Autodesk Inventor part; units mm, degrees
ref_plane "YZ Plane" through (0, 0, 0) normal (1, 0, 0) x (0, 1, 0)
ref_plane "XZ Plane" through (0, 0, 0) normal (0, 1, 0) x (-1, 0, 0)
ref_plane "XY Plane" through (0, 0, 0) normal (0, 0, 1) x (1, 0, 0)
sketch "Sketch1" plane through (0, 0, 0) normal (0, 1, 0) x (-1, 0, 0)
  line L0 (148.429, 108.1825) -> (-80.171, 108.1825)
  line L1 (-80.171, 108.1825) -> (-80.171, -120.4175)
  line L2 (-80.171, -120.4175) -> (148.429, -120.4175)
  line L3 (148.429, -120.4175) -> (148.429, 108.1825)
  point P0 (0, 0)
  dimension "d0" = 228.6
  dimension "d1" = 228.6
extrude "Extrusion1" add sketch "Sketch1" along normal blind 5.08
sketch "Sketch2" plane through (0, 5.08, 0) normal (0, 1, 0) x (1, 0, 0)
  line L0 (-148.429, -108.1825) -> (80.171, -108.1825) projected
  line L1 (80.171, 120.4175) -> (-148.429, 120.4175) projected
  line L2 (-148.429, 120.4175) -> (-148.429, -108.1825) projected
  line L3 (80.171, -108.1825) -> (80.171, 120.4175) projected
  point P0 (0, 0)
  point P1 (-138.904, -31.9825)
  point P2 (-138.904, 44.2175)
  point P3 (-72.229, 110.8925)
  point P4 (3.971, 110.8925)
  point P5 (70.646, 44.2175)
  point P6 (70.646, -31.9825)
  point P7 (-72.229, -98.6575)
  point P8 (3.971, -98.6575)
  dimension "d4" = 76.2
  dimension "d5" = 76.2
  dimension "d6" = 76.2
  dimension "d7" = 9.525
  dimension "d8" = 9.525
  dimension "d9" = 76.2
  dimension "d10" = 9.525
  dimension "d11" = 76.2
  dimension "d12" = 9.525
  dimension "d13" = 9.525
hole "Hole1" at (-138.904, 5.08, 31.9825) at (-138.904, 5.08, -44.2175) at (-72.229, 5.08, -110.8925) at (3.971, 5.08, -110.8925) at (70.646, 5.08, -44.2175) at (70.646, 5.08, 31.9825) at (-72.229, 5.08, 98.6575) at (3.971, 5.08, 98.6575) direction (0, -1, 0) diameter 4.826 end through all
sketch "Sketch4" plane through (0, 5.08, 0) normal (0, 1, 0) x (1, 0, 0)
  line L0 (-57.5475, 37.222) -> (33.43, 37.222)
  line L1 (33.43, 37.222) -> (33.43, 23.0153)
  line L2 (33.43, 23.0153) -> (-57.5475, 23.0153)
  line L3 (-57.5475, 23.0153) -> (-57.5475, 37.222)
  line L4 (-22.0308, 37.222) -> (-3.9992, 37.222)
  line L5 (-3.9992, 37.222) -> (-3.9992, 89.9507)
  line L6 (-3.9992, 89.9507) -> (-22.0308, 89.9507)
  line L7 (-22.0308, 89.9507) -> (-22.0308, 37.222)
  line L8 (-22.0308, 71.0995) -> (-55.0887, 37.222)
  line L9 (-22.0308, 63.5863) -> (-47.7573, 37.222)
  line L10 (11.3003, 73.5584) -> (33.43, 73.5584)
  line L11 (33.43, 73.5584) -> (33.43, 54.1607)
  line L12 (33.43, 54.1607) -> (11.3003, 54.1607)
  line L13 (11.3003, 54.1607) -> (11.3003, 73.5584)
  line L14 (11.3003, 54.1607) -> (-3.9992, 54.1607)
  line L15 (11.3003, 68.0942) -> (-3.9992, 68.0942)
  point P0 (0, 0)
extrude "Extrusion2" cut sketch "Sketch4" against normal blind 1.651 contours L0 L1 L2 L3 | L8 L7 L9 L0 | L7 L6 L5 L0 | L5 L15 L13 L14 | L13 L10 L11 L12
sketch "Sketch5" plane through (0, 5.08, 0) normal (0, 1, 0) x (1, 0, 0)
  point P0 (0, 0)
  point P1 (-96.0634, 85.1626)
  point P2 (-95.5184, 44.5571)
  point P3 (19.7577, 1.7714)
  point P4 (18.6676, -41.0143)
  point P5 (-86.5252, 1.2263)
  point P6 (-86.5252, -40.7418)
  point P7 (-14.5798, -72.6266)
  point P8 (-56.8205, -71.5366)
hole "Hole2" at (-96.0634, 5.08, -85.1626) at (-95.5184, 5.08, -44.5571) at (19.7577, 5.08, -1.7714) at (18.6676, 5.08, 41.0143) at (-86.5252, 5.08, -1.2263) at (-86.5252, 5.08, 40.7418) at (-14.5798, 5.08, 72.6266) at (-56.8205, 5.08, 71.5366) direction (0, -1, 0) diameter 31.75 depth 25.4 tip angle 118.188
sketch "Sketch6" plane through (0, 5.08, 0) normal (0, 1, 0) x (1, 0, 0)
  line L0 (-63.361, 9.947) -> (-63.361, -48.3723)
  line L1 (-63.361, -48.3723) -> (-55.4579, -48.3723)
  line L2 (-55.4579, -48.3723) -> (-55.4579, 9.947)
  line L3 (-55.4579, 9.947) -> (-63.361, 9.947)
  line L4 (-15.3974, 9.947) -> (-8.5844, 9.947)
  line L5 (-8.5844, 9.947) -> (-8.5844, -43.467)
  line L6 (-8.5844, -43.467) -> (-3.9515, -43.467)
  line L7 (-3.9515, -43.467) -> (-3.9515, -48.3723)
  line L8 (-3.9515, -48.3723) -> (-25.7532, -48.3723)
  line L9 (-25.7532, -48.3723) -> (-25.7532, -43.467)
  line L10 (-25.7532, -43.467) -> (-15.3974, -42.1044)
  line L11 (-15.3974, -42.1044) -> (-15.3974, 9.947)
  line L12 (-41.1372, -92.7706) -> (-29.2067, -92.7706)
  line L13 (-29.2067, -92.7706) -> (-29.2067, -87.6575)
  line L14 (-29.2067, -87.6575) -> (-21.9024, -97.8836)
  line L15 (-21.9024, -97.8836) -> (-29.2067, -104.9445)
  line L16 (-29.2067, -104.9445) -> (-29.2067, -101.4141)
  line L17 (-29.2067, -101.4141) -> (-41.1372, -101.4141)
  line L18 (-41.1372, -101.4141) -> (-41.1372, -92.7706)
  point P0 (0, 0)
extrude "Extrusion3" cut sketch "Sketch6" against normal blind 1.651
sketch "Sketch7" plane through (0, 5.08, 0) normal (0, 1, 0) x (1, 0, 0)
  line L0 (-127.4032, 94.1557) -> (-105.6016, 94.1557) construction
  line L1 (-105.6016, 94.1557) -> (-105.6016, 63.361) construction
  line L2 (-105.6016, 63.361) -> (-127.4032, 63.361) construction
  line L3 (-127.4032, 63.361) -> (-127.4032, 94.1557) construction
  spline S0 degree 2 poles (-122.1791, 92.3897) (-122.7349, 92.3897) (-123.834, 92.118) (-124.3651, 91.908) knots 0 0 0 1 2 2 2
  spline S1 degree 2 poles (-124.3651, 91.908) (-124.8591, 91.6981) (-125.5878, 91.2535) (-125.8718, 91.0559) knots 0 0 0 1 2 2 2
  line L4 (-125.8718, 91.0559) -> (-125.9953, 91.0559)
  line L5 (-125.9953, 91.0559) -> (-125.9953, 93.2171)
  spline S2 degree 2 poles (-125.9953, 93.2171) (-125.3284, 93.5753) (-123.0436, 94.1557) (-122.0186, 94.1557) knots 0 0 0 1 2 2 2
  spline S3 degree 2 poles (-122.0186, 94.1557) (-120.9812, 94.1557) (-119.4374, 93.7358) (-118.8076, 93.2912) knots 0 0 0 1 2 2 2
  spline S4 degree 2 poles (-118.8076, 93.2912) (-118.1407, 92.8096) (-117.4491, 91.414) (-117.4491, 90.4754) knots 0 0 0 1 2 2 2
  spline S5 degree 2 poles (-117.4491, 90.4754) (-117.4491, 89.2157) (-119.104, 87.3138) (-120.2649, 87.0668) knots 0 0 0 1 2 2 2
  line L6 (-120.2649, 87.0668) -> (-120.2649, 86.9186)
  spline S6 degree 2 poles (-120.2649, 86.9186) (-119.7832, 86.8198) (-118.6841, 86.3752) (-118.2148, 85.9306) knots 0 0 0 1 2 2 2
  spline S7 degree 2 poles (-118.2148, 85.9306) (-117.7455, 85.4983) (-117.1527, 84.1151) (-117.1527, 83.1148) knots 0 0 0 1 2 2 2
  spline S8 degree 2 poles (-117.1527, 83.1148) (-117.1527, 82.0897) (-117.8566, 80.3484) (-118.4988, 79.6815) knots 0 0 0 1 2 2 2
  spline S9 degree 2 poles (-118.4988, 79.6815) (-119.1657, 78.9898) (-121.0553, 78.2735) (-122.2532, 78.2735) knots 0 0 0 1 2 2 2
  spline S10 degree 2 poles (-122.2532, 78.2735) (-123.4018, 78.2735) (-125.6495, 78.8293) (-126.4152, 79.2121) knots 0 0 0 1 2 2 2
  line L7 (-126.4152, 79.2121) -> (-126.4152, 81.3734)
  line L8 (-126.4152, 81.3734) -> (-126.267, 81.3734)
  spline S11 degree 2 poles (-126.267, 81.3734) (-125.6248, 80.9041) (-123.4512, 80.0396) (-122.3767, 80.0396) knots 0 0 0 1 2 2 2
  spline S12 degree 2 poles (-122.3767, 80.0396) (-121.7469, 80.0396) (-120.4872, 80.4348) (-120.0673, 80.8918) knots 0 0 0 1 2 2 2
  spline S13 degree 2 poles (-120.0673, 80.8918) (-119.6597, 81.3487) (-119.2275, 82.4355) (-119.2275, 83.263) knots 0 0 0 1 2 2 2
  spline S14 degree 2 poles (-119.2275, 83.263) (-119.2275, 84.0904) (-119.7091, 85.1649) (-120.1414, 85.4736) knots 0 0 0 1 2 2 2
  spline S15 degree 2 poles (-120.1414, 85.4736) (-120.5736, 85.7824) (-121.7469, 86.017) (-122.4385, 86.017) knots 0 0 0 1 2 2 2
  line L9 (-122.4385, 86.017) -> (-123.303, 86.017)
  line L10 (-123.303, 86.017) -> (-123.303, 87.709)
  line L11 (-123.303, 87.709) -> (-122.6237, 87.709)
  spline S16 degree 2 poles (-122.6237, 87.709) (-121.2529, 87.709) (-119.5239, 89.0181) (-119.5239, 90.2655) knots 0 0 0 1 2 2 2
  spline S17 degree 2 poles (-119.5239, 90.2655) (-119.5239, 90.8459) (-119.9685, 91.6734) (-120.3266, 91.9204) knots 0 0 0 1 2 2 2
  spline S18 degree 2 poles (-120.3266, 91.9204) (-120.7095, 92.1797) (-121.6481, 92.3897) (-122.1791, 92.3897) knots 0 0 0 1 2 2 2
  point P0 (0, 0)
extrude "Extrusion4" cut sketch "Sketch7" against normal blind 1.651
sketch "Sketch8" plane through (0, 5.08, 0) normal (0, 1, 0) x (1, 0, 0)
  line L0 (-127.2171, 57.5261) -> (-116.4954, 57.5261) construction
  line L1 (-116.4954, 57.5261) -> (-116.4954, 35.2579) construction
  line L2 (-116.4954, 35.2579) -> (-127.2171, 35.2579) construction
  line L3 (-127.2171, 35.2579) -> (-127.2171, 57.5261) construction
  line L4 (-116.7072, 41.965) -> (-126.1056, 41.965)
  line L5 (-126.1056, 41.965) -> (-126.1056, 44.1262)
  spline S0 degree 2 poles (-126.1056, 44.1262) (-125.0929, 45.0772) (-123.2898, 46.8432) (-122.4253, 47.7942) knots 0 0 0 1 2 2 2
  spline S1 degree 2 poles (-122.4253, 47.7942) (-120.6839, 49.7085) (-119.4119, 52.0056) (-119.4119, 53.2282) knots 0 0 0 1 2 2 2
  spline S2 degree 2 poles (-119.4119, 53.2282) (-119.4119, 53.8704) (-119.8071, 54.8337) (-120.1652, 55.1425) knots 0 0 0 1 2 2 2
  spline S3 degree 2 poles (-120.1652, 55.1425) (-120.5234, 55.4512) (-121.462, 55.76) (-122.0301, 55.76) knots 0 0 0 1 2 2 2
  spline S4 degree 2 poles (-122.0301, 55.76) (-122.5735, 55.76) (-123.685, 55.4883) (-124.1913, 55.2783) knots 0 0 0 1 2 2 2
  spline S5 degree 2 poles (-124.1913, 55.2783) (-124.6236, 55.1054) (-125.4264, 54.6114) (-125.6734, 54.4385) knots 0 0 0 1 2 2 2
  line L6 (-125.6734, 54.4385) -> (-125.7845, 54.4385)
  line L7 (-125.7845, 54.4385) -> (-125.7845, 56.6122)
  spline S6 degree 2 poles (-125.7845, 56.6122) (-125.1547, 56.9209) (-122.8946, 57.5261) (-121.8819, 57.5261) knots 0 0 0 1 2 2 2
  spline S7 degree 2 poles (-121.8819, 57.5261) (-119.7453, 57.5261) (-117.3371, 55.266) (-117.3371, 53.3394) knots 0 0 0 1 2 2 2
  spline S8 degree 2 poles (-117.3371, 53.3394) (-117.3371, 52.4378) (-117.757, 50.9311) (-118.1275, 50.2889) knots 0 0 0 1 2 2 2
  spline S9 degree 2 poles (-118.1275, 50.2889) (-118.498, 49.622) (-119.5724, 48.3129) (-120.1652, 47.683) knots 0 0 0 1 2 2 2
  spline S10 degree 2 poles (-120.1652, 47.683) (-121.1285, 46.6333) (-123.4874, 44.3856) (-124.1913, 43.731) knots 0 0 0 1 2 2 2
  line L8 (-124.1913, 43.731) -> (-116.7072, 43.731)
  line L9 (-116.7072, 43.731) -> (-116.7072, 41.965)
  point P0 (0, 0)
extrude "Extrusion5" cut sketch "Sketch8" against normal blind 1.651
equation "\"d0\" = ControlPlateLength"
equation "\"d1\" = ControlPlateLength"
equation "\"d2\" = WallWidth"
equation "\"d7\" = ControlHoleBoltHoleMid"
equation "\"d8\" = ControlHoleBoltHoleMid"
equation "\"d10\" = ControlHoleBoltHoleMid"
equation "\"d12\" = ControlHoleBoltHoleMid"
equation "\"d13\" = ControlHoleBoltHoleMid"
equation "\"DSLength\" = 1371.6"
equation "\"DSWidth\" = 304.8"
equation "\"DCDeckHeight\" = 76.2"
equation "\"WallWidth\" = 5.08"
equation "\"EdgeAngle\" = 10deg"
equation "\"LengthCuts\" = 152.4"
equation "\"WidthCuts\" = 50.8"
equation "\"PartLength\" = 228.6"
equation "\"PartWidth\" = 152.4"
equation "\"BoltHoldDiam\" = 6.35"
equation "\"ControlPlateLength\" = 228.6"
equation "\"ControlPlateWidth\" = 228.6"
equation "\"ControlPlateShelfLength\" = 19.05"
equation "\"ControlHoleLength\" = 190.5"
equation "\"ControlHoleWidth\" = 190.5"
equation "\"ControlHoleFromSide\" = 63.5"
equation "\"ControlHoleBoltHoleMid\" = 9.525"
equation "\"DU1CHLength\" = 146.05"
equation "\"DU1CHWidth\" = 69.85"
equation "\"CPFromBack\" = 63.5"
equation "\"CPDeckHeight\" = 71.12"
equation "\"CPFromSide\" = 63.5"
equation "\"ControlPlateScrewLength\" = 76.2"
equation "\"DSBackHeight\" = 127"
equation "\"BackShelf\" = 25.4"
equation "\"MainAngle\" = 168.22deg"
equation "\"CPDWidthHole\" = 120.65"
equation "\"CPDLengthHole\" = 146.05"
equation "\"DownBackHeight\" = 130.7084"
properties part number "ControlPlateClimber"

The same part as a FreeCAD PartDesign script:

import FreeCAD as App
import Part
import Sketcher
from FreeCAD import Vector
Q = App.Units.Quantity

doc = App.newDocument("Part")
body = doc.addObject("PartDesign::Body", "Body")

sketch1 = body.newObject("Sketcher::SketchObject", "Sketch")
sketch1.AttachmentSupport = (doc.getObject("XZ_Plane"), [""])
sketch1.MapMode = "FlatFace"
sketch1.addGeometry([
    Part.LineSegment(Vector(-148, -120, 0), Vector(-148, 108, 0)),
    Part.LineSegment(Vector(-148, 108, 0), Vector(80, 108, 0)),
    Part.LineSegment(Vector(80, 108, 0), Vector(80, -120, 0)),
    Part.LineSegment(Vector(80, -120, 0), Vector(-148, -120, 0)),
], False)
sketch1.addConstraint([
    Sketcher.Constraint("Coincident", 0, 2, 1, 1),
    Sketcher.Constraint("Coincident", 1, 2, 2, 1),
    Sketcher.Constraint("Coincident", 2, 2, 3, 1),
    Sketcher.Constraint("Coincident", 3, 2, 0, 1),
    Sketcher.Constraint("Vertical", 0),
    Sketcher.Constraint("Horizontal", 1),
    Sketcher.Constraint("Vertical", 2),
    Sketcher.Constraint("Horizontal", 3),
    Sketcher.Constraint("Equal", 3, 0),
    Sketcher.Constraint("DistanceX", 1, 1, 1, 2, Q("9 in")),
    Sketcher.Constraint("DistanceX", 0, 2, -1, 1, 148.429),
    Sketcher.Constraint("DistanceY", -1, 1, 0, 2, 108.1825),
])
pad1 = body.newObject("PartDesign::Pad", "Pad")
pad1.Profile = sketch1
pad1.Length = Q("0.2 in")
pad1.Reversed = True

sketch2 = body.newObject("Sketcher::SketchObject", "Sketch001")
sketch2.AttachmentSupport = (doc.getObject("XZ_Plane"), [""])
sketch2.MapMode = "FlatFace"
sketch2.AttachmentOffset = App.Placement(Vector(0, 0, -0.2 * 25.4), App.Rotation())
sketch2.addGeometry([
    Part.Circle(Vector(-138.9, 32, 0), Vector(0, 0, 1), 2.4),
    Part.Circle(Vector(-138.9, -44.2, 0), Vector(0, 0, 1), 2.4),
    Part.Circle(Vector(-72.2, -110.9, 0), Vector(0, 0, 1), 2.4),
    Part.Circle(Vector(4, -110.9, 0), Vector(0, 0, 1), 2.4),
    Part.Circle(Vector(70.6, -44.2, 0), Vector(0, 0, 1), 2.4),
    Part.Circle(Vector(70.6, 32, 0), Vector(0, 0, 1), 2.4),
    Part.Circle(Vector(-72.2, 98.7, 0), Vector(0, 0, 1), 2.4),
    Part.Circle(Vector(4, 98.7, 0), Vector(0, 0, 1), 2.4),
], False)
sketch2.addConstraint([
    Sketcher.Constraint("Equal", 0, 1),
    Sketcher.Constraint("Equal", 1, 2),
    Sketcher.Constraint("Equal", 2, 3),
    Sketcher.Constraint("Equal", 3, 4),
    Sketcher.Constraint("Equal", 4, 5),
    Sketcher.Constraint("Equal", 5, 6),
    Sketcher.Constraint("Equal", 6, 7),
    Sketcher.Constraint("Horizontal", 2, 3, 3, 3),
    Sketcher.Constraint("Horizontal", 1, 3, 4, 3),
    Sketcher.Constraint("Horizontal", 0, 3, 5, 3),
    Sketcher.Constraint("Horizontal", 6, 3, 7, 3),
    Sketcher.Constraint("Vertical", 0, 3, 1, 3),
    Sketcher.Constraint("Vertical", 4, 3, 5, 3),
    Sketcher.Constraint("Vertical", 2, 3, 6, 3),
    Sketcher.Constraint("Vertical", 3, 3, 7, 3),
    Sketcher.Constraint("Diameter", 0, Q("0.19 in")),
    Sketcher.Constraint("DistanceY", 1, 3, 0, 3, Q("3 in")),
    Sketcher.Constraint("DistanceX", 2, 3, 3, 3, Q("3 in")),
    Sketcher.Constraint("DistanceX", 1, 3, 4, 3, Q("8.25 in")),
    Sketcher.Constraint("DistanceY", 2, 3, 6, 3, Q("8.25 in")),
    Sketcher.Constraint("DistanceX", 1, 3, 2, 3, Q("2.625 in")),
    Sketcher.Constraint("DistanceY", 2, 3, 1, 3, Q("2.625 in")),
    Sketcher.Constraint("DistanceX", 0, 3, -1, 1, 138.904),
    Sketcher.Constraint("DistanceY", -1, 1, 0, 3, 31.9825),
])
doc.recompute()
hole = body.newObject("PartDesign::Hole", "Hole")
hole.Profile = sketch2
hole.ThreadType = "None"
hole.Diameter = Q("0.19 in")
hole.DepthType = "ThroughAll"
hole.Reversed = True

sketch3 = body.newObject("Sketcher::SketchObject", "Sketch002")
sketch3.AttachmentSupport = (doc.getObject("XZ_Plane"), [""])
sketch3.MapMode = "FlatFace"
sketch3.AttachmentOffset = App.Placement(Vector(0, 0, -0.2 * 25.4), App.Rotation())
sketch3.addGeometry([
    Part.LineSegment(Vector(-55.1, -37.2, 0), Vector(-57.5, -37.2, 0)),
    Part.LineSegment(Vector(-57.5, -37.2, 0), Vector(-57.5, -23, 0)),
    Part.LineSegment(Vector(-57.5, -23, 0), Vector(33.4, -23, 0)),
    Part.LineSegment(Vector(33.4, -23, 0), Vector(33.4, -37.2, 0)),
    Part.LineSegment(Vector(33.4, -37.2, 0), Vector(-4, -37.2, 0)),
    Part.LineSegment(Vector(-4, -37.2, 0), Vector(-4, -54.2, 0)),
    Part.LineSegment(Vector(-4, -54.2, 0), Vector(33.4, -54.2, 0)),
    Part.LineSegment(Vector(33.4, -54.2, 0), Vector(33.4, -73.6, 0)),
    Part.LineSegment(Vector(33.4, -73.6, 0), Vector(11.3, -73.6, 0)),
    Part.LineSegment(Vector(11.3, -73.6, 0), Vector(11.3, -68.1, 0)),
    Part.LineSegment(Vector(11.3, -68.1, 0), Vector(-4, -68.1, 0)),
    Part.LineSegment(Vector(-4, -68.1, 0), Vector(-4, -90, 0)),
    Part.LineSegment(Vector(-4, -90, 0), Vector(-22, -90, 0)),
    Part.LineSegment(Vector(-22, -90, 0), Vector(-22, -71.1, 0)),
    Part.LineSegment(Vector(-22, -71.1, 0), Vector(-55.1, -37.2, 0)),
    Part.LineSegment(Vector(-22, -37.2, 0), Vector(-47.8, -37.2, 0)),
    Part.LineSegment(Vector(-47.8, -37.2, 0), Vector(-22, -63.6, 0)),
    Part.LineSegment(Vector(-22, -63.6, 0), Vector(-22, -37.2, 0)),
], False)
sketch3.addConstraint([
    Sketcher.Constraint("Coincident", 0, 2, 1, 1),
    Sketcher.Constraint("Coincident", 1, 2, 2, 1),
    Sketcher.Constraint("Coincident", 2, 2, 3, 1),
    Sketcher.Constraint("Coincident", 3, 2, 4, 1),
    Sketcher.Constraint("Coincident", 4, 2, 5, 1),
    Sketcher.Constraint("Coincident", 5, 2, 6, 1),
    Sketcher.Constraint("Coincident", 6, 2, 7, 1),
    Sketcher.Constraint("Coincident", 7, 2, 8, 1),
    Sketcher.Constraint("Coincident", 8, 2, 9, 1),
    Sketcher.Constraint("Coincident", 9, 2, 10, 1),
    Sketcher.Constraint("Coincident", 10, 2, 11, 1),
    Sketcher.Constraint("Coincident", 11, 2, 12, 1),
    Sketcher.Constraint("Coincident", 12, 2, 13, 1),
    Sketcher.Constraint("Coincident", 13, 2, 14, 1),
    Sketcher.Constraint("Coincident", 14, 2, 0, 1),
    Sketcher.Constraint("Coincident", 15, 2, 16, 1),
    Sketcher.Constraint("Coincident", 16, 2, 17, 1),
    Sketcher.Constraint("Coincident", 17, 2, 15, 1),
    Sketcher.Constraint("Horizontal", 0),
    Sketcher.Constraint("Vertical", 1),
    Sketcher.Constraint("Horizontal", 2),
    Sketcher.Constraint("Vertical", 3),
    Sketcher.Constraint("Horizontal", 4),
    Sketcher.Constraint("Vertical", 5),
    Sketcher.Constraint("Horizontal", 6),
    Sketcher.Constraint("Vertical", 7),
    Sketcher.Constraint("Horizontal", 8),
    Sketcher.Constraint("Vertical", 9),
    Sketcher.Constraint("Horizontal", 10),
    Sketcher.Constraint("Vertical", 11),
    Sketcher.Constraint("Horizontal", 12),
    Sketcher.Constraint("Vertical", 13),
    Sketcher.Constraint("Horizontal", 15),
    Sketcher.Constraint("Vertical", 17),
    Sketcher.Constraint("Parallel", 14, 16),
    Sketcher.Constraint("Horizontal", 0, 2, 3, 2),
    Sketcher.Constraint("Horizontal", 14, 2, 15, 2),
    Sketcher.Constraint("Vertical", 3, 2, 6, 2),
    Sketcher.Constraint("Vertical", 5, 2, 10, 2),
    Sketcher.Constraint("Vertical", 13, 2, 16, 2),
    Sketcher.Constraint("DistanceX", 0, 2, 0, 1, Q("0.0968 in")),
    Sketcher.Constraint("DistanceX", 2, 1, 2, 2, Q("3.5818 in")),
    Sketcher.Constraint("DistanceX", 4, 2, 4, 1, Q("1.4736 in")),
    Sketcher.Constraint("DistanceX", 12, 2, 12, 1, Q("0.7099 in")),
    Sketcher.Constraint("DistanceY", 7, 2, 7, 1, Q("0.7637 in")),
    Sketcher.Constraint("DistanceY", 11, 2, 11, 1, Q("0.8605 in")),
    Sketcher.Constraint("DistanceY", 7, 2, -1, 1, Q("2.896 in")),
    Sketcher.Constraint("DistanceX", 8, 2, 8, 1, 22.1297),
    Sketcher.Constraint("DistanceX", 15, 2, 15, 1, 25.7265),
    Sketcher.Constraint("DistanceY", 1, 1, 1, 2, 14.2067),
    Sketcher.Constraint("DistanceY", 5, 2, 5, 1, 16.9387),
    Sketcher.Constraint("DistanceY", 9, 1, 9, 2, 5.4642),
    Sketcher.Constraint("DistanceY", 13, 1, 13, 2, 18.8512),
    Sketcher.Constraint("DistanceX", -1, 1, 8, 2, Q("0.4449 in")),
])
pocket1 = body.newObject("PartDesign::Pocket", "Pocket")
pocket1.Profile = sketch3
pocket1.Length = Q("0.065 in")
pocket1.Reversed = True

sketch4 = body.newObject("Sketcher::SketchObject", "Sketch003")
sketch4.AttachmentSupport = (doc.getObject("XZ_Plane"), [""])
sketch4.MapMode = "FlatFace"
sketch4.AttachmentOffset = App.Placement(Vector(0, 0, -0.2 * 25.4), App.Rotation())
sketch4.addGeometry([
    Part.Circle(Vector(-96, -85, 0), Vector(0, 0, 1), 16),
    Part.Circle(Vector(-96, -45, 0), Vector(0, 0, 1), 16),
    Part.Circle(Vector(20, -2, 0), Vector(0, 0, 1), 16),
    Part.Circle(Vector(19, 41, 0), Vector(0, 0, 1), 16),
    Part.Circle(Vector(-87, -1, 0), Vector(0, 0, 1), 16),
    Part.Circle(Vector(-87, 41, 0), Vector(0, 0, 1), 16),
    Part.Circle(Vector(-15, 73, 0), Vector(0, 0, 1), 16),
    Part.Circle(Vector(-57, 72, 0), Vector(0, 0, 1), 16),
], False)
sketch4.addConstraint([
    Sketcher.Constraint("Equal", 0, 1),
    Sketcher.Constraint("Equal", 1, 2),
    Sketcher.Constraint("Equal", 2, 3),
    Sketcher.Constraint("Equal", 3, 4),
    Sketcher.Constraint("Equal", 4, 5),
    Sketcher.Constraint("Equal", 5, 6),
    Sketcher.Constraint("Equal", 6, 7),
    Sketcher.Constraint("Vertical", 4, 3, 5, 3),
    Sketcher.Constraint("Diameter", 0, Q("1.25 in")),
    Sketcher.Constraint("DistanceY", -1, 1, 5, 3, Q("1.604 in")),
    Sketcher.Constraint("DistanceX", 6, 3, -1, 1, Q("0.574 in")),
    Sketcher.Constraint("DistanceX", 4, 3, -1, 1, Q("3.4065 in")),
    Sketcher.Constraint("DistanceY", -1, 1, 7, 3, Q("2.8164 in")),
    Sketcher.Constraint("DistanceX", 1, 3, 3, 3, Q("4.4955 in")),
    Sketcher.Constraint("DistanceY", 0, 3, 3, 3, Q("4.9676 in")),
    Sketcher.Constraint("DistanceY", 5, 3, 6, 3, Q("1.2553 in")),
    Sketcher.Constraint("DistanceY", 4, 3, 6, 3, Q("2.9076 in")),
    Sketcher.Constraint("DistanceX", 7, 3, 2, 3, Q("3.0149 in")),
    Sketcher.Constraint("DistanceX", 0, 3, -1, 1, 96.0634),
    Sketcher.Constraint("DistanceY", 0, 3, -1, 1, 85.1626),
    Sketcher.Constraint("DistanceX", 1, 3, -1, 1, 95.5184),
    Sketcher.Constraint("DistanceY", 1, 3, -1, 1, 44.557),
    Sketcher.Constraint("DistanceX", -1, 1, 2, 3, 19.7577),
    Sketcher.Constraint("DistanceY", 2, 3, -1, 1, 1.7714),
])
doc.recompute()
hole2 = body.newObject("PartDesign::Hole", "Hole001")
hole2.Profile = sketch4
hole2.ThreadType = "None"
hole2.Diameter = Q("1.25 in")
hole2.DepthType = "Dimension"
hole2.Depth = Q("1 in")
hole2.DrillPoint = "Angled"
hole2.DrillPointAngle = 118.188
hole2.Reversed = True

sketch5 = body.newObject("Sketcher::SketchObject", "Sketch004")
sketch5.AttachmentSupport = (doc.getObject("XZ_Plane"), [""])
sketch5.MapMode = "FlatFace"
sketch5.AttachmentOffset = App.Placement(Vector(0, 0, -0.2 * 25.4), App.Rotation())
sketch5.addGeometry([
    Part.LineSegment(Vector(-55.5, -9.9, 0), Vector(-63.4, -9.9, 0)),
    Part.LineSegment(Vector(-63.4, -9.9, 0), Vector(-63.4, 48.4, 0)),
    Part.LineSegment(Vector(-63.4, 48.4, 0), Vector(-55.5, 48.4, 0)),
    Part.LineSegment(Vector(-55.5, 48.4, 0), Vector(-55.5, -9.9, 0)),
    Part.LineSegment(Vector(-8.6, -9.9, 0), Vector(-15.4, -9.9, 0)),
    Part.LineSegment(Vector(-15.4, -9.9, 0), Vector(-15.4, 42.1, 0)),
    Part.LineSegment(Vector(-15.4, 42.1, 0), Vector(-25.8, 43.5, 0)),
    Part.LineSegment(Vector(-25.8, 43.5, 0), Vector(-25.8, 48.4, 0)),
    Part.LineSegment(Vector(-25.8, 48.4, 0), Vector(-4, 48.4, 0)),
    Part.LineSegment(Vector(-4, 48.4, 0), Vector(-4, 43.5, 0)),
    Part.LineSegment(Vector(-4, 43.5, 0), Vector(-8.6, 43.5, 0)),
    Part.LineSegment(Vector(-8.6, 43.5, 0), Vector(-8.6, -9.9, 0)),
    Part.LineSegment(Vector(-29.2, 92.8, 0), Vector(-41.1, 92.8, 0)),
    Part.LineSegment(Vector(-41.1, 92.8, 0), Vector(-41.1, 101.4, 0)),
    Part.LineSegment(Vector(-41.1, 101.4, 0), Vector(-29.2, 101.4, 0)),
    Part.LineSegment(Vector(-29.2, 101.4, 0), Vector(-29.2, 104.9, 0)),
    Part.LineSegment(Vector(-29.2, 104.9, 0), Vector(-21.9, 97.9, 0)),
    Part.LineSegment(Vector(-21.9, 97.9, 0), Vector(-29.2, 87.7, 0)),
    Part.LineSegment(Vector(-29.2, 87.7, 0), Vector(-29.2, 92.8, 0)),
], False)
sketch5.addConstraint([
    Sketcher.Constraint("Coincident", 0, 2, 1, 1),
    Sketcher.Constraint("Coincident", 1, 2, 2, 1),
    Sketcher.Constraint("Coincident", 2, 2, 3, 1),
    Sketcher.Constraint("Coincident", 3, 2, 0, 1),
    Sketcher.Constraint("Coincident", 4, 2, 5, 1),
    Sketcher.Constraint("Coincident", 5, 2, 6, 1),
    Sketcher.Constraint("Coincident", 6, 2, 7, 1),
    Sketcher.Constraint("Coincident", 7, 2, 8, 1),
    Sketcher.Constraint("Coincident", 8, 2, 9, 1),
    Sketcher.Constraint("Coincident", 9, 2, 10, 1),
    Sketcher.Constraint("Coincident", 10, 2, 11, 1),
    Sketcher.Constraint("Coincident", 11, 2, 4, 1),
    Sketcher.Constraint("Coincident", 12, 2, 13, 1),
    Sketcher.Constraint("Coincident", 13, 2, 14, 1),
    Sketcher.Constraint("Coincident", 14, 2, 15, 1),
    Sketcher.Constraint("Coincident", 15, 2, 16, 1),
    Sketcher.Constraint("Coincident", 16, 2, 17, 1),
    Sketcher.Constraint("Coincident", 17, 2, 18, 1),
    Sketcher.Constraint("Coincident", 18, 2, 12, 1),
    Sketcher.Constraint("Horizontal", 0),
    Sketcher.Constraint("Vertical", 1),
    Sketcher.Constraint("Horizontal", 2),
    Sketcher.Constraint("Vertical", 3),
    Sketcher.Constraint("Horizontal", 4),
    Sketcher.Constraint("Vertical", 5),
    Sketcher.Constraint("Vertical", 7),
    Sketcher.Constraint("Horizontal", 8),
    Sketcher.Constraint("Vertical", 9),
    Sketcher.Constraint("Horizontal", 10),
    Sketcher.Constraint("Vertical", 11),
    Sketcher.Constraint("Horizontal", 12),
    Sketcher.Constraint("Vertical", 13),
    Sketcher.Constraint("Horizontal", 14),
    Sketcher.Constraint("Vertical", 15),
    Sketcher.Constraint("Vertical", 18),
    Sketcher.Constraint("Horizontal", 3, 2, 4, 2),
    Sketcher.Constraint("Horizontal", 2, 2, 7, 2),
    Sketcher.Constraint("Horizontal", 6, 2, 9, 2),
    Sketcher.Constraint("Vertical", 15, 2, 17, 2),
    Sketcher.Constraint("DistanceY", 15, 1, 15, 2, Q("0.139 in")),
    Sketcher.Constraint("Angle", 16, Q("-44.0293 deg")),
    Sketcher.Constraint("DistanceX", 10, 2, 10, 1, Q("0.1824 in")),
    Sketcher.Constraint("DistanceX", 12, 2, 12, 1, Q("0.4697 in")),
    Sketcher.Constraint("DistanceY", 13, 1, 13, 2, Q("0.3403 in")),
    Sketcher.Constraint("DistanceY", 18, 1, 18, 2, Q("0.2013 in")),
    Sketcher.Constraint("DistanceY", 16, 2, 14, 2, Q("0.139 in")),
    Sketcher.Constraint("DistanceX", 0, 2, 0, 1, 7.903),
    Sketcher.Constraint("DistanceX", 4, 2, 4, 1, 6.813),
    Sketcher.Constraint("DistanceX", 8, 1, 8, 2, 21.8017),
    Sketcher.Constraint("DistanceY", 1, 1, 1, 2, 58.3193),
    Sketcher.Constraint("DistanceY", 5, 1, 5, 2, 52.0514),
    Sketcher.Constraint("DistanceY", 7, 1, 7, 2, 4.9053),
    Sketcher.Constraint("DistanceX", 4, 2, -1, 1, Q("0.6062 in")),
    Sketcher.Constraint("DistanceY", -1, 1, 6, 2, Q("1.7113 in")),
    Sketcher.Constraint("DistanceX", 16, 2, -1, 1, Q("0.8623 in")),
    Sketcher.Constraint("DistanceX", 2, 2, 8, 2, Q("2.0278 in")),
    Sketcher.Constraint("DistanceY", -1, 1, 12, 2, 92.7706),
])
pocket2 = body.newObject("PartDesign::Pocket", "Pocket001")
pocket2.Profile = sketch5
pocket2.Length = Q("0.065 in")
pocket2.Reversed = True

sketch6 = body.newObject("Sketcher::SketchObject", "Sketch005")
sketch6.AttachmentSupport = (doc.getObject("XZ_Plane"), [""])
sketch6.MapMode = "FlatFace"
sketch6.AttachmentOffset = App.Placement(Vector(0, 0, -0.2 * 25.4), App.Rotation())
sketch6.addGeometry([
    Part.BSplineCurve([Vector(-122.1791, -92.3897, 0), Vector(-122.7349, -92.3897, 0), Vector(-123.834, -92.118, 0), Vector(-124.3651, -91.908, 0)], [3, 1, 3], [0, 1, 2], False, 2, [1, 1, 1, 1], False),
    Part.BSplineCurve([Vector(-120.3266, -91.9204, 0), Vector(-120.7095, -92.1797, 0), Vector(-121.6481, -92.3897, 0), Vector(-122.1791, -92.3897, 0)], [3, 1, 3], [0, 1, 2], False, 2, [1, 1, 1, 1], False),
    Part.BSplineCurve([Vector(-119.5239, -90.2655, 0), Vector(-119.5239, -90.8459, 0), Vector(-119.9685, -91.6734, 0), Vector(-120.3266, -91.9204, 0)], [3, 1, 3], [0, 1, 2], False, 2, [1, 1, 1, 1], False),
    Part.BSplineCurve([Vector(-122.6237, -87.709, 0), Vector(-121.2529, -87.709, 0), Vector(-119.5239, -89.0181, 0), Vector(-119.5239, -90.2655, 0)], [3, 1, 3], [0, 1, 2], False, 2, [1, 1, 1, 1], False),
    Part.LineSegment(Vector(-122.6237, -87.709, 0), Vector(-123.303, -87.709, 0)),
    Part.LineSegment(Vector(-123.303, -87.709, 0), Vector(-123.303, -86.017, 0)),
    Part.LineSegment(Vector(-123.303, -86.017, 0), Vector(-122.4385, -86.017, 0)),
    Part.BSplineCurve([Vector(-120.1414, -85.4736, 0), Vector(-120.5736, -85.7824, 0), Vector(-121.7469, -86.017, 0), Vector(-122.4385, -86.017, 0)], [3, 1, 3], [0, 1, 2], False, 2, [1, 1, 1, 1], False),
    Part.BSplineCurve([Vector(-119.2275, -83.263, 0), Vector(-119.2275, -84.0904, 0), Vector(-119.7091, -85.1649, 0), Vector(-120.1414, -85.4736, 0)], [3, 1, 3], [0, 1, 2], False, 2, [1, 1, 1, 1], False),
    Part.BSplineCurve([Vector(-120.0673, -80.8918, 0), Vector(-119.6597, -81.3487, 0), Vector(-119.2275, -82.4355, 0), Vector(-119.2275, -83.263, 0)], [3, 1, 3], [0, 1, 2], False, 2, [1, 1, 1, 1], False),
    Part.BSplineCurve([Vector(-122.3767, -80.0396, 0), Vector(-121.7469, -80.0396, 0), Vector(-120.4872, -80.4348, 0), Vector(-120.0673, -80.8918, 0)], [3, 1, 3], [0, 1, 2], False, 2, [1, 1, 1, 1], False),
    Part.BSplineCurve([Vector(-126.267, -81.3734, 0), Vector(-125.6248, -80.9041, 0), Vector(-123.4512, -80.0396, 0), Vector(-122.3767, -80.0396, 0)], [3, 1, 3], [0, 1, 2], False, 2, [1, 1, 1, 1], False),
    Part.LineSegment(Vector(-126.267, -81.3734, 0), Vector(-126.4152, -81.3734, 0)),
    Part.LineSegment(Vector(-126.4152, -81.3734, 0), Vector(-126.4152, -79.2121, 0)),
    Part.BSplineCurve([Vector(-122.2532, -78.2735, 0), Vector(-123.4018, -78.2735, 0), Vector(-125.6495, -78.8293, 0), Vector(-126.4152, -79.2121, 0)], [3, 1, 3], [0, 1, 2], False, 2, [1, 1, 1, 1], False),
    Part.BSplineCurve([Vector(-118.4988, -79.6815, 0), Vector(-119.1657, -78.9898, 0), Vector(-121.0553, -78.2735, 0), Vector(-122.2532, -78.2735, 0)], [3, 1, 3], [0, 1, 2], False, 2, [1, 1, 1, 1], False),
    Part.BSplineCurve([Vector(-117.1527, -83.1148, 0), Vector(-117.1527, -82.0897, 0), Vector(-117.8566, -80.3484, 0), Vector(-118.4988, -79.6815, 0)], [3, 1, 3], [0, 1, 2], False, 2, [1, 1, 1, 1], False),
    Part.BSplineCurve([Vector(-118.2148, -85.9306, 0), Vector(-117.7455, -85.4983, 0), Vector(-117.1527, -84.1151, 0), Vector(-117.1527, -83.1148, 0)], [3, 1, 3], [0, 1, 2], False, 2, [1, 1, 1, 1], False),
    Part.BSplineCurve([Vector(-120.2649, -86.9186, 0), Vector(-119.7832, -86.8198, 0), Vector(-118.6841, -86.3752, 0), Vector(-118.2148, -85.9306, 0)], [3, 1, 3], [0, 1, 2], False, 2, [1, 1, 1, 1], False),
    Part.LineSegment(Vector(-120.2649, -86.9186, 0), Vector(-120.2649, -87.0668, 0)),
    Part.BSplineCurve([Vector(-117.4491, -90.4754, 0), Vector(-117.4491, -89.2157, 0), Vector(-119.104, -87.3138, 0), Vector(-120.2649, -87.0668, 0)], [3, 1, 3], [0, 1, 2], False, 2, [1, 1, 1, 1], False),
    Part.BSplineCurve([Vector(-118.8076, -93.2912, 0), Vector(-118.1407, -92.8096, 0), Vector(-117.4491, -91.414, 0), Vector(-117.4491, -90.4754, 0)], [3, 1, 3], [0, 1, 2], False, 2, [1, 1, 1, 1], False),
    Part.BSplineCurve([Vector(-122.0186, -94.1557, 0), Vector(-120.9812, -94.1557, 0), Vector(-119.4374, -93.7358, 0), Vector(-118.8076, -93.2912, 0)], [3, 1, 3], [0, 1, 2], False, 2, [1, 1, 1, 1], False),
    Part.BSplineCurve([Vector(-125.9953, -93.2171, 0), Vector(-125.3284, -93.5753, 0), Vector(-123.0436, -94.1557, 0), Vector(-122.0186, -94.1557, 0)], [3, 1, 3], [0, 1, 2], False, 2, [1, 1, 1, 1], False),
    Part.LineSegment(Vector(-125.9953, -93.2171, 0), Vector(-125.9953, -91.0559, 0)),
    Part.LineSegment(Vector(-125.9953, -91.0559, 0), Vector(-125.8718, -91.0559, 0)),
    Part.BSplineCurve([Vector(-124.3651, -91.908, 0), Vector(-124.8591, -91.6981, 0), Vector(-125.5878, -91.2535, 0), Vector(-125.8718, -91.0559, 0)], [3, 1, 3], [0, 1, 2], False, 2, [1, 1, 1, 1], False),
], False)
sketch6.addConstraint([
    Sketcher.Constraint("Block", 0),
    Sketcher.Constraint("Block", 1),
    Sketcher.Constraint("Block", 2),
    Sketcher.Constraint("Block", 3),
    Sketcher.Constraint("Block", 7),
    Sketcher.Constraint("Block", 8),
    Sketcher.Constraint("Block", 9),
    Sketcher.Constraint("Block", 10),
    Sketcher.Constraint("Block", 11),
    Sketcher.Constraint("Block", 14),
    Sketcher.Constraint("Block", 15),
    Sketcher.Constraint("Block", 16),
    Sketcher.Constraint("Block", 17),
    Sketcher.Constraint("Block", 18),
    Sketcher.Constraint("Block", 20),
    Sketcher.Constraint("Block", 21),
    Sketcher.Constraint("Block", 22),
    Sketcher.Constraint("Block", 23),
    Sketcher.Constraint("Block", 26),
    Sketcher.Constraint("Coincident", 3, 1, 4, 1),
    Sketcher.Constraint("Coincident", 4, 2, 5, 1),
    Sketcher.Constraint("Coincident", 5, 2, 6, 1),
    Sketcher.Constraint("Coincident", 6, 2, 7, 2),
    Sketcher.Constraint("Coincident", 11, 1, 12, 1),
    Sketcher.Constraint("Coincident", 12, 2, 13, 1),
    Sketcher.Constraint("Coincident", 13, 2, 14, 2),
    Sketcher.Constraint("Coincident", 18, 1, 19, 1),
    Sketcher.Constraint("Coincident", 19, 2, 20, 2),
    Sketcher.Constraint("Coincident", 23, 1, 24, 1),
    Sketcher.Constraint("Coincident", 24, 2, 25, 1),
    Sketcher.Constraint("Coincident", 25, 2, 26, 2),
    Sketcher.Constraint("Horizontal", 4),
    Sketcher.Constraint("Vertical", 5),
    Sketcher.Constraint("Horizontal", 6),
    Sketcher.Constraint("Horizontal", 12),
    Sketcher.Constraint("Vertical", 13),
    Sketcher.Constraint("Vertical", 24),
    Sketcher.Constraint("Horizontal", 25),
    Sketcher.Constraint("DistanceX", 24, 2, 4, 2, Q("0.106 in")),
])
pocket3 = body.newObject("PartDesign::Pocket", "Pocket002")
pocket3.Profile = sketch6
pocket3.Length = Q("0.065 in")
pocket3.Reversed = True

sketch7 = body.newObject("Sketcher::SketchObject", "Sketch006")
sketch7.AttachmentSupport = (doc.getObject("XZ_Plane"), [""])
sketch7.MapMode = "FlatFace"
sketch7.AttachmentOffset = App.Placement(Vector(0, 0, -0.2 * 25.4), App.Rotation())
sketch7.addGeometry([
    Part.LineSegment(Vector(-126.1056, -41.965, 0), Vector(-116.7072, -41.965, 0)),
    Part.LineSegment(Vector(-116.7072, -41.965, 0), Vector(-116.7072, -43.731, 0)),
    Part.LineSegment(Vector(-116.7072, -43.731, 0), Vector(-124.1913, -43.731, 0)),
    Part.BSplineCurve([Vector(-120.1652, -47.683, 0), Vector(-121.1285, -46.6333, 0), Vector(-123.4874, -44.3856, 0), Vector(-124.1913, -43.731, 0)], [3, 1, 3], [0, 1, 2], False, 2, [1, 1, 1, 1], False),
    Part.BSplineCurve([Vector(-118.1275, -50.2889, 0), Vector(-118.498, -49.622, 0), Vector(-119.5724, -48.3129, 0), Vector(-120.1652, -47.683, 0)], [3, 1, 3], [0, 1, 2], False, 2, [1, 1, 1, 1], False),
    Part.BSplineCurve([Vector(-117.3371, -53.3394, 0), Vector(-117.3371, -52.4378, 0), Vector(-117.757, -50.9311, 0), Vector(-118.1275, -50.2889, 0)], [3, 1, 3], [0, 1, 2], False, 2, [1, 1, 1, 1], False),
    Part.BSplineCurve([Vector(-121.8819, -57.5261, 0), Vector(-119.7453, -57.5261, 0), Vector(-117.3371, -55.266, 0), Vector(-117.3371, -53.3394, 0)], [3, 1, 3], [0, 1, 2], False, 2, [1, 1, 1, 1], False),
    Part.BSplineCurve([Vector(-125.7845, -56.6122, 0), Vector(-125.1547, -56.9209, 0), Vector(-122.8946, -57.5261, 0), Vector(-121.8819, -57.5261, 0)], [3, 1, 3], [0, 1, 2], False, 2, [1, 1, 1, 1], False),
    Part.LineSegment(Vector(-125.7845, -56.6122, 0), Vector(-125.7845, -54.4385, 0)),
    Part.LineSegment(Vector(-125.7845, -54.4385, 0), Vector(-125.6734, -54.4385, 0)),
    Part.BSplineCurve([Vector(-124.1913, -55.2783, 0), Vector(-124.6236, -55.1054, 0), Vector(-125.4264, -54.6114, 0), Vector(-125.6734, -54.4385, 0)], [3, 1, 3], [0, 1, 2], False, 2, [1, 1, 1, 1], False),
    Part.BSplineCurve([Vector(-122.0301, -55.76, 0), Vector(-122.5735, -55.76, 0), Vector(-123.685, -55.4883, 0), Vector(-124.1913, -55.2783, 0)], [3, 1, 3], [0, 1, 2], False, 2, [1, 1, 1, 1], False),
    Part.BSplineCurve([Vector(-120.1652, -55.1425, 0), Vector(-120.5234, -55.4512, 0), Vector(-121.462, -55.76, 0), Vector(-122.0301, -55.76, 0)], [3, 1, 3], [0, 1, 2], False, 2, [1, 1, 1, 1], False),
    Part.BSplineCurve([Vector(-119.4119, -53.2282, 0), Vector(-119.4119, -53.8704, 0), Vector(-119.8071, -54.8337, 0), Vector(-120.1652, -55.1425, 0)], [3, 1, 3], [0, 1, 2], False, 2, [1, 1, 1, 1], False),
    Part.BSplineCurve([Vector(-122.4253, -47.7942, 0), Vector(-120.6839, -49.7085, 0), Vector(-119.4119, -52.0056, 0), Vector(-119.4119, -53.2282, 0)], [3, 1, 3], [0, 1, 2], False, 2, [1, 1, 1, 1], False),
    Part.BSplineCurve([Vector(-126.1056, -44.1262, 0), Vector(-125.0929, -45.0772, 0), Vector(-123.2898, -46.8432, 0), Vector(-122.4253, -47.7942, 0)], [3, 1, 3], [0, 1, 2], False, 2, [1, 1, 1, 1], False),
    Part.LineSegment(Vector(-126.1056, -44.1262, 0), Vector(-126.1056, -41.965, 0)),
], False)
sketch7.addConstraint([
    Sketcher.Constraint("Block", 3),
    Sketcher.Constraint("Block", 4),
    Sketcher.Constraint("Block", 5),
    Sketcher.Constraint("Block", 6),
    Sketcher.Constraint("Block", 7),
    Sketcher.Constraint("Block", 10),
    Sketcher.Constraint("Block", 11),
    Sketcher.Constraint("Block", 12),
    Sketcher.Constraint("Block", 13),
    Sketcher.Constraint("Block", 14),
    Sketcher.Constraint("Block", 15),
    Sketcher.Constraint("Coincident", 0, 2, 1, 1),
    Sketcher.Constraint("Coincident", 1, 2, 2, 1),
    Sketcher.Constraint("Coincident", 2, 2, 3, 2),
    Sketcher.Constraint("Coincident", 7, 1, 8, 1),
    Sketcher.Constraint("Coincident", 8, 2, 9, 1),
    Sketcher.Constraint("Coincident", 9, 2, 10, 2),
    Sketcher.Constraint("Coincident", 15, 1, 16, 1),
    Sketcher.Constraint("Coincident", 16, 2, 0, 1),
    Sketcher.Constraint("Horizontal", 0),
    Sketcher.Constraint("Vertical", 1),
    Sketcher.Constraint("Horizontal", 2),
    Sketcher.Constraint("Vertical", 8),
    Sketcher.Constraint("Horizontal", 9),
    Sketcher.Constraint("Vertical", 16),
    Sketcher.Constraint("DistanceX", 9, 2, 1, 2, Q("0.353 in")),
    Sketcher.Constraint("DistanceY", 1, 2, 1, 1, 1.766),
])
pocket4 = body.newObject("PartDesign::Pocket", "Pocket003")
pocket4.Profile = sketch7
pocket4.Length = Q("0.065 in")
pocket4.Reversed = True

doc.recompute()
